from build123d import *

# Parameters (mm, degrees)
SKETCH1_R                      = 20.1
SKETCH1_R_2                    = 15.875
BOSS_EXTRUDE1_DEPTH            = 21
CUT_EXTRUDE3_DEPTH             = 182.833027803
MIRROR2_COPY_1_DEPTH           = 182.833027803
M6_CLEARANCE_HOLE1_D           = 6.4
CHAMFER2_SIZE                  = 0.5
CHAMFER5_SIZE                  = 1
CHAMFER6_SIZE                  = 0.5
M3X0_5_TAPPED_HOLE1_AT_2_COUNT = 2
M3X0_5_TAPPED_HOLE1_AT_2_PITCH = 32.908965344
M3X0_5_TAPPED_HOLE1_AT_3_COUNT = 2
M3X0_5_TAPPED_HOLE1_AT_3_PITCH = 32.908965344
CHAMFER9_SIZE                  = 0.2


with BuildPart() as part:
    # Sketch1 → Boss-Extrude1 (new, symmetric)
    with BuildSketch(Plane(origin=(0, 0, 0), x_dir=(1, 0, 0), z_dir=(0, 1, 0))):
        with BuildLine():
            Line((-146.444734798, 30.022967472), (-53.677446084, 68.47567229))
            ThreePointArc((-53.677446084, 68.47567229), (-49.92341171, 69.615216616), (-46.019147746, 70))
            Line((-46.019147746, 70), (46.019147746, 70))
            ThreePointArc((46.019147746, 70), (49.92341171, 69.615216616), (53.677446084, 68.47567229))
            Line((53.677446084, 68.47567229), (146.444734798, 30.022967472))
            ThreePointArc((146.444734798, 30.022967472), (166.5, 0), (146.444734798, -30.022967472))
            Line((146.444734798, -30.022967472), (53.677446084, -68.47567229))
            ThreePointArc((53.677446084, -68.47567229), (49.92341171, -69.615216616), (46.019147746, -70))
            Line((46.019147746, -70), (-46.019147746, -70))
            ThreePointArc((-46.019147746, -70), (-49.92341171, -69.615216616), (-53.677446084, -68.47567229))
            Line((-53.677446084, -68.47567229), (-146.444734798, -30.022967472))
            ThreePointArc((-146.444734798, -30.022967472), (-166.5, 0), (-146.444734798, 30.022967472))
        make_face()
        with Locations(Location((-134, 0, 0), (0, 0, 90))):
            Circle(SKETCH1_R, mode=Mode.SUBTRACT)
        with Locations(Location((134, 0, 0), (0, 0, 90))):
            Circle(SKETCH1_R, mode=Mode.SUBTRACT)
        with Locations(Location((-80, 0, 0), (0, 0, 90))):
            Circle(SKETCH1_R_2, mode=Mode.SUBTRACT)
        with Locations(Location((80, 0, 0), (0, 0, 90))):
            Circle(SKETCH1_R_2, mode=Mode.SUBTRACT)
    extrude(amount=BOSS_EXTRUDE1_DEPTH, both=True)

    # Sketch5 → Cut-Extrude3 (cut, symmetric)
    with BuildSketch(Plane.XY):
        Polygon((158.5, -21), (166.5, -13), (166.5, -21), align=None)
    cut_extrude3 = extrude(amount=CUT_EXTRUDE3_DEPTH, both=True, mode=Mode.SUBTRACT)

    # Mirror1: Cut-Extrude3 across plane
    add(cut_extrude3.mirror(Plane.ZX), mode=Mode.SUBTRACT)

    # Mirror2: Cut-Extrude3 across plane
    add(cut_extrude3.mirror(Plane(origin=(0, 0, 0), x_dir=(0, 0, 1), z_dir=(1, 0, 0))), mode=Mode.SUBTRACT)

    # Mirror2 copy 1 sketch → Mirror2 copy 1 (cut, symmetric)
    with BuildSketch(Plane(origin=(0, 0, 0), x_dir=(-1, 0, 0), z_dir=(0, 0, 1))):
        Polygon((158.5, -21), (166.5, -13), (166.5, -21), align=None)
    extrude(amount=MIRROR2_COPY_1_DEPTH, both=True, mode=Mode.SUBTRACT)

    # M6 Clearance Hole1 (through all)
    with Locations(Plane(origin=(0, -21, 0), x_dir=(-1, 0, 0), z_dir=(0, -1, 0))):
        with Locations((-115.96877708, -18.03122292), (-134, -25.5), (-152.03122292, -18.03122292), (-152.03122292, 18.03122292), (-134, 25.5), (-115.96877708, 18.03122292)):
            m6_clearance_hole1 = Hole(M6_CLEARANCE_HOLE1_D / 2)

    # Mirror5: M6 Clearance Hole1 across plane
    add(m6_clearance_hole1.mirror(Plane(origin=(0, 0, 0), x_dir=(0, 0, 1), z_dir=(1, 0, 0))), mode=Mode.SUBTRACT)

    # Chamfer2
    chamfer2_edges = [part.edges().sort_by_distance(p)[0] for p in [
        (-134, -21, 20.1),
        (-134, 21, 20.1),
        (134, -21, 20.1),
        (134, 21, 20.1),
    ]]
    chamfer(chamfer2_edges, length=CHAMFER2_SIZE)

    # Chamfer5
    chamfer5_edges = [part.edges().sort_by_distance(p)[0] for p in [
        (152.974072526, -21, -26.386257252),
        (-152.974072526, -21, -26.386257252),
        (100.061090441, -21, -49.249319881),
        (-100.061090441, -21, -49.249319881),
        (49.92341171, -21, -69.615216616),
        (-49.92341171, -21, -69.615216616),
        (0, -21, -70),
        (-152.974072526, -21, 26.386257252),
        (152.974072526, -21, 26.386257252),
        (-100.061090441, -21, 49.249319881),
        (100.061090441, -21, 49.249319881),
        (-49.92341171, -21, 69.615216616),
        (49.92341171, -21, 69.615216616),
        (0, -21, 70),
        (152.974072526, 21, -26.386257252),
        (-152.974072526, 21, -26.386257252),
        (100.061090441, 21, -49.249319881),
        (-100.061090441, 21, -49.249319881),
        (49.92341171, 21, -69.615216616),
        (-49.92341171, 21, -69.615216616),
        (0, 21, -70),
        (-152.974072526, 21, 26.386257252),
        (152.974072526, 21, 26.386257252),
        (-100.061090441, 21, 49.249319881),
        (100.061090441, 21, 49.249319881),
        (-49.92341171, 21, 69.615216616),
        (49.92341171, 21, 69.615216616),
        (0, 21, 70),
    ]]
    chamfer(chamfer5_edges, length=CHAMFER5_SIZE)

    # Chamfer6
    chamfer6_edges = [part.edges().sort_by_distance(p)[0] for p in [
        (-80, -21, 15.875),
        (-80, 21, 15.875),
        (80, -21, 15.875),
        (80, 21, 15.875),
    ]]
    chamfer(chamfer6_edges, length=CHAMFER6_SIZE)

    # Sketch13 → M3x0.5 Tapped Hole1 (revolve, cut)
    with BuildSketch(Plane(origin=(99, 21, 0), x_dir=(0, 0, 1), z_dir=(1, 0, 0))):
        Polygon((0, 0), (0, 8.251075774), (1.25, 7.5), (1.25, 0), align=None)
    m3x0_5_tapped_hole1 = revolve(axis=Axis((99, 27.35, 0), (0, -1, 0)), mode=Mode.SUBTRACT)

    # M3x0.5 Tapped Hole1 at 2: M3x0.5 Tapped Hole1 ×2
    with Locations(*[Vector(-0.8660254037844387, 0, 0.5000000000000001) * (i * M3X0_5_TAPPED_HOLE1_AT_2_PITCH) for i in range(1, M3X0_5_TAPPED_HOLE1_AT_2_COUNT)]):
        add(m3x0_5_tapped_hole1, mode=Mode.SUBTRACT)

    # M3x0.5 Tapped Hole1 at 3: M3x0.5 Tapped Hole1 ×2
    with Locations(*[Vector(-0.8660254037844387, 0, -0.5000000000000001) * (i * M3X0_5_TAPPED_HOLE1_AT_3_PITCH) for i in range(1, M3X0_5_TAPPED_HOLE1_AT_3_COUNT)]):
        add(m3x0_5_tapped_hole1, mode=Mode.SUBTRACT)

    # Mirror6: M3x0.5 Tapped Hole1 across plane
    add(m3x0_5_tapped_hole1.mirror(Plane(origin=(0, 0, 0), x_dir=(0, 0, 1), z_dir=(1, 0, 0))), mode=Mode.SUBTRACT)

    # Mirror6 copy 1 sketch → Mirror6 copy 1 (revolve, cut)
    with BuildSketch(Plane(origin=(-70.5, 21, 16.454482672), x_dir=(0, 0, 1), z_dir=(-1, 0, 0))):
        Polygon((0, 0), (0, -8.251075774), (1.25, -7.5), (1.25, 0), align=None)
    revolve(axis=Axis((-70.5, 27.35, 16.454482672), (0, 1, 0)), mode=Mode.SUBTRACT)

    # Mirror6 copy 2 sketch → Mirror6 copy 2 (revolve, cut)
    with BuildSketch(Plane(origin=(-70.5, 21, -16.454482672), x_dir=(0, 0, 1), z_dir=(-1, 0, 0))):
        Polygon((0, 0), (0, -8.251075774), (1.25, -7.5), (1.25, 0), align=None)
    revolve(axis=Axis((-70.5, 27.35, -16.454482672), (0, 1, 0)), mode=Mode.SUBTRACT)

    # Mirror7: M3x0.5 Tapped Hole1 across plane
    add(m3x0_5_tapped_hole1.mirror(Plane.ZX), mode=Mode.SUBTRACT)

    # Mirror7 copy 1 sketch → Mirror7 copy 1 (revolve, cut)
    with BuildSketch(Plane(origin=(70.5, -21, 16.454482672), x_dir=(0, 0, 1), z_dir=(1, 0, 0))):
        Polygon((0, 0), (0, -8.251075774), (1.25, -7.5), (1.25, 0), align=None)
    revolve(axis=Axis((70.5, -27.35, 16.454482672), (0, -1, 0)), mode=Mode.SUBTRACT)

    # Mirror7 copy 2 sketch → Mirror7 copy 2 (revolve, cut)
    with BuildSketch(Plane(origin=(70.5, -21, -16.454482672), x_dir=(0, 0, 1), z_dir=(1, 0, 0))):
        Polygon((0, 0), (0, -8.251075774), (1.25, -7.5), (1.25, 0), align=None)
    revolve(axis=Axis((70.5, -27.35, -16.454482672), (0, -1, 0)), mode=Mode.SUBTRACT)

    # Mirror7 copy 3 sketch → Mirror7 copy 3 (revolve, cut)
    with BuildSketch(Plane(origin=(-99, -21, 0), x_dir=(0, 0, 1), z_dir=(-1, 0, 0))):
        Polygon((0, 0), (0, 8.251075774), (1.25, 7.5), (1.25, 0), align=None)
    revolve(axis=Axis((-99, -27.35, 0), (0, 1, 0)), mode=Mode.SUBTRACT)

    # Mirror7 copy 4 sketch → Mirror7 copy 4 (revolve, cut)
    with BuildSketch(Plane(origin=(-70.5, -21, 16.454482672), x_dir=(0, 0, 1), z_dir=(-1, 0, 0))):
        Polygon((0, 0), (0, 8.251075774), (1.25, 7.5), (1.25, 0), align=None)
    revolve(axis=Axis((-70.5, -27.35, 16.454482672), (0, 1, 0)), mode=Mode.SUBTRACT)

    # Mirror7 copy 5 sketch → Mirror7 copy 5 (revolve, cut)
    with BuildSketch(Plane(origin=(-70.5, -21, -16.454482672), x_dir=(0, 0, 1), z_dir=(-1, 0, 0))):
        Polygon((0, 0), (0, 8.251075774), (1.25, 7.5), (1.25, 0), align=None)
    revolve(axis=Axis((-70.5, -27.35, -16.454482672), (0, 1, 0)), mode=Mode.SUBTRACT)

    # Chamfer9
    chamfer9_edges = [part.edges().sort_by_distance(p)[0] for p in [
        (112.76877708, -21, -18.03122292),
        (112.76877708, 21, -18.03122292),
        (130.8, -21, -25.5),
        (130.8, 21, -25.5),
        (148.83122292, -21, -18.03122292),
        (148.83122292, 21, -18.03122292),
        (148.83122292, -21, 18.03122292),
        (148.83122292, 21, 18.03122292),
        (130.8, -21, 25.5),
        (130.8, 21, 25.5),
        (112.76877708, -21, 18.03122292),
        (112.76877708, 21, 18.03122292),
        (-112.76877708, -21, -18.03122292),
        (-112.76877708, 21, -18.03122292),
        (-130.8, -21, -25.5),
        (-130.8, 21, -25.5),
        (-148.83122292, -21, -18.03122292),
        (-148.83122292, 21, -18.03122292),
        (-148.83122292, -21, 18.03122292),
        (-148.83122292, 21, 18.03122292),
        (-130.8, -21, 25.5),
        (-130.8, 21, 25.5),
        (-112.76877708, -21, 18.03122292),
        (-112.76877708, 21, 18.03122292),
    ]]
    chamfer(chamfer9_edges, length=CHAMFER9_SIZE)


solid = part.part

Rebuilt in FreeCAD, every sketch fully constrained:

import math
import FreeCAD as App
import Part
import Sketcher

V = App.Vector
Q = App.Units.Quantity


def edges_at(feature, points):
    """Names of the edges that pass closest to the given points."""
    edges = feature.Shape.Edges
    near = lambda p: min(range(len(edges)), key=lambda i: edges[i].distToShape(Part.Vertex(*p))[0])
    return sorted({f"Edge{near(p) + 1}" for p in points})


def add_polygon(sketch, points):
    """Adds a closed chain of lines whose ends are joined by coincident constraints."""
    first, n = sketch.GeometryCount, len(points)
    for a, b in zip(points, points[1:] + points[:1]):
        sketch.addGeometry(Part.LineSegment(App.Vector(*a, 0), App.Vector(*b, 0)), False)
    for i in range(n):
        sketch.addConstraint(Sketcher.Constraint("Coincident", first + i, 2, first + (i + 1) % n, 1))

doc = App.newDocument("Part")
body = doc.addObject("PartDesign::Body", "Body")

# Sketch on XZ plane
sketch1 = body.newObject("Sketcher::SketchObject", "Sketch")
sketch1.AttachmentSupport = (doc.getObject("XZ_Plane"), [""])
sketch1.MapMode = "FlatFace"
sketch1.addGeometry([
    Part.LineSegment(V(-54, -68, 0), V(-146, -30, 0)),  # 0
    Part.ArcOfCircle(Part.Circle(V(-134, 0, 0), V(0, 0, 1), 32), math.radians(113), math.radians(247)),  # 1
    Part.LineSegment(V(-146, 30, 0), V(-54, 68, 0)),  # 2
    Part.ArcOfCircle(Part.Circle(V(-46, 50, 0), V(0, 0, 1), 20), math.radians(90), math.radians(113)),  # 3
    Part.LineSegment(V(-46, 70, 0), V(46, 70, 0)),  # 4
    Part.ArcOfCircle(Part.Circle(V(46, 50, 0), V(0, 0, 1), 20), math.radians(67), math.radians(90)),  # 5
    Part.LineSegment(V(54, 68, 0), V(146, 30, 0)),  # 6
    Part.ArcOfCircle(Part.Circle(V(134, 0, 0), V(0, 0, 1), 32), math.radians(-67), math.radians(67)),  # 7
    Part.LineSegment(V(146, -30, 0), V(54, -68, 0)),  # 8
    Part.ArcOfCircle(Part.Circle(V(46, -50, 0), V(0, 0, 1), 20), math.radians(-90), math.radians(-67)),  # 9
    Part.LineSegment(V(46, -70, 0), V(-46, -70, 0)),  # 10
    Part.ArcOfCircle(Part.Circle(V(-46, -50, 0), V(0, 0, 1), 20), math.radians(-113), math.radians(-90)),  # 11
    Part.Circle(V(134, 0, 0), V(0, 0, 1), 20),  # 12
    Part.Circle(V(80, 0, 0), V(0, 0, 1), 16),  # 13
    Part.Circle(V(-80, 0, 0), V(0, 0, 1), 16),  # 14
    Part.Circle(V(-134, 0, 0), V(0, 0, 1), 20),  # 15
], False)
sketch1.addConstraint([
    Sketcher.Constraint("Tangent", 0, 2, 1, 2),
    Sketcher.Constraint("Tangent", 1, 1, 2, 1),
    Sketcher.Constraint("Tangent", 2, 2, 3, 2),
    Sketcher.Constraint("Tangent", 3, 1, 4, 1),
    Sketcher.Constraint("Tangent", 4, 2, 5, 2),
    Sketcher.Constraint("Tangent", 5, 1, 6, 1),
    Sketcher.Constraint("Tangent", 6, 2, 7, 2),
    Sketcher.Constraint("Tangent", 7, 1, 8, 1),
    Sketcher.Constraint("Tangent", 8, 2, 9, 2),
    Sketcher.Constraint("Tangent", 9, 1, 10, 1),
    Sketcher.Constraint("Tangent", 10, 2, 11, 2),
    Sketcher.Constraint("Tangent", 11, 1, 0, 1),
    Sketcher.Constraint("Horizontal", 4),
    Sketcher.Constraint("Horizontal", 10),
    Sketcher.Constraint("Coincident", 12, 3, 7, 3),
    Sketcher.Constraint("Coincident", 15, 3, 1, 3),
    Sketcher.Constraint("Equal", 3, 5),
    Sketcher.Constraint("Equal", 1, 7),
    Sketcher.Constraint("Equal", 5, 9),
    Sketcher.Constraint("Equal", 9, 11),
    Sketcher.Constraint("Equal", 13, 14),
    Sketcher.Constraint("Equal", 12, 15),
    Sketcher.Constraint("Symmetric", 1, 3, 7, 3, -1, 1),
    Sketcher.Constraint("Symmetric", 3, 3, 9, 3, -1, 1),
    Sketcher.Constraint("Symmetric", 13, 3, 14, 3, -1, 1),
    Sketcher.Constraint("Symmetric", 2, 2, 5, 1, -2),
    Sketcher.Constraint("PointOnObject", 13, 3, -1),
    Sketcher.Constraint("Parallel", 0, 6),
    Sketcher.Constraint("Radius", 3, Q("20 mm")),
    Sketcher.Constraint("Diameter", 12, Q("40.2 mm")),
    Sketcher.Constraint("Radius", 1, Q("32.5 mm")),
    Sketcher.Constraint("Diameter", 13, Q("31.75 mm")),
    Sketcher.Constraint("DistanceX", 1, 3, -1, 1, Q("134 mm")),
    Sketcher.Constraint("DistanceY", -1, 1, 3, 3, Q("50 mm")),
    Sketcher.Constraint("DistanceX", -1, 1, 13, 3, Q("80 mm")),
    Sketcher.Constraint("DistanceX", 2, 2, 3, 3, Q("7.658298 mm")),
])
pad1 = body.newObject("PartDesign::Pad", "Pad")
pad1.Profile = sketch1
pad1.Length = 42
pad1.Midplane = True

# Sketch on XY plane
sketch2 = body.newObject("Sketcher::SketchObject", "Sketch001")
sketch2.AttachmentSupport = (doc.getObject("XY_Plane"), [""])
sketch2.MapMode = "FlatFace"
add_polygon(sketch2, [(166, -13), (158, -21), (166, -21)])  # lines 0-2
sketch2.addConstraint([
    Sketcher.Constraint("Horizontal", 1),
    Sketcher.Constraint("Vertical", 2),
    Sketcher.Constraint("Equal", 1, 2),
    Sketcher.Constraint("DistanceX", 1, 1, 1, 2, Q("8 mm")),
    Sketcher.Constraint("DistanceY", 0, 2, -1, 1, Q("21 mm")),
    Sketcher.Constraint("DistanceX", -1, 1, 0, 2, Q("158.5 mm")),
])
pocket1 = body.newObject("PartDesign::Pocket", "Pocket")
pocket1.Profile = sketch2
pocket1.Length = 365.666056
pocket1.Midplane = True
doc.recompute()

mirrored = body.newObject("PartDesign::Mirrored", "Mirrored")
mirrored.Originals = [pocket1]
mirrored.MirrorPlane = (doc.getObject("XZ_Plane"), [""])
body.Tip = mirrored
doc.recompute()

mirrored2 = body.newObject("PartDesign::Mirrored", "Mirrored001")
mirrored2.Originals = [pocket1]
mirrored2.MirrorPlane = (doc.getObject("YZ_Plane"), [""])
body.Tip = mirrored2

# Sketch on XY plane
sketch3 = body.newObject("Sketcher::SketchObject", "Sketch002")
sketch3.AttachmentSupport = (doc.getObject("XY_Plane"), [""])
sketch3.MapMode = "FlatFace"
add_polygon(sketch3, [(-166, 13), (-158, 21), (-166, 21)])  # lines 0-2
sketch3.addConstraint([
    Sketcher.Constraint("Horizontal", 1),
    Sketcher.Constraint("Vertical", 2),
    Sketcher.Constraint("Equal", 1, 2),
    Sketcher.Constraint("DistanceX", 1, 2, 1, 1, Q("8 mm")),
    Sketcher.Constraint("DistanceY", -1, 1, 0, 2, Q("21 mm")),
    Sketcher.Constraint("DistanceX", 0, 2, -1, 1, Q("158.5 mm")),
])
pocket2 = body.newObject("PartDesign::Pocket", "Pocket001")
pocket2.Profile = sketch3
pocket2.Length = 365.666056
pocket2.Midplane = True

# Sketch on XZ plane
sketch4 = body.newObject("Sketcher::SketchObject", "Sketch003")
sketch4.AttachmentSupport = (doc.getObject("XZ_Plane"), [""])
sketch4.MapMode = "FlatFace"
sketch4.AttachmentOffset = App.Placement(V(0, 0, 21), App.Rotation())
sketch4.addGeometry([
    Part.Circle(V(116, 18, 0), V(0, 0, 1), 3.2),  # 0
    Part.Circle(V(134, 25.5, 0), V(0, 0, 1), 3.2),  # 1
    Part.Circle(V(152, 18, 0), V(0, 0, 1), 3.2),  # 2
    Part.Circle(V(152, -18, 0), V(0, 0, 1), 3.2),  # 3
    Part.Circle(V(134, -25.5, 0), V(0, 0, 1), 3.2),  # 4
    Part.Circle(V(116, -18, 0), V(0, 0, 1), 3.2),  # 5
], False)
sketch4.addConstraint([
    Sketcher.Constraint("Equal", 0, 1),
    Sketcher.Constraint("Equal", 1, 2),
    Sketcher.Constraint("Equal", 2, 3),
    Sketcher.Constraint("Equal", 3, 4),
    Sketcher.Constraint("Equal", 4, 5),
    Sketcher.Constraint("Symmetric", 2, 3, 3, 3, -1),
    Sketcher.Constraint("Symmetric", 1, 3, 4, 3, -1),
    Sketcher.Constraint("Symmetric", 0, 3, 5, 3, -1),
    Sketcher.Constraint("Horizontal", 0, 3, 2, 3),
    Sketcher.Constraint("Diameter", 0, Q("6.4 mm")),
    Sketcher.Constraint("DistanceX", -1, 1, 1, 3, Q("134 mm")),
    Sketcher.Constraint("DistanceY", 4, 3, 1, 3, Q("51 mm")),
    Sketcher.Constraint("DistanceX", -1, 1, 0, 3, Q("115.968777 mm")),
    Sketcher.Constraint("DistanceY", -1, 1, 0, 3, Q("18.031223 mm")),
    Sketcher.Constraint("DistanceX", -1, 1, 2, 3, Q("152.031223 mm")),
])
doc.recompute()
hole = body.newObject("PartDesign::Hole", "Hole")
hole.Profile = sketch4
hole.ThreadType = "None"
hole.Diameter = 6.4
hole.DepthType = "ThroughAll"
doc.recompute()

mirrored3 = body.newObject("PartDesign::Mirrored", "Mirrored002")
mirrored3.Originals = [hole]
mirrored3.MirrorPlane = (doc.getObject("YZ_Plane"), [""])
body.Tip = mirrored3
doc.recompute()

chamfer = body.newObject("PartDesign::Chamfer", "Chamfer")
chamfer.Base = (mirrored3, edges_at(mirrored3, [
    (-134, -21, 20.1),
    (-134, 21, 20.1),
    (134, -21, 20.1),
    (134, 21, 20.1),
]))
chamfer.Size = 0.5
doc.recompute()

chamfer2 = body.newObject("PartDesign::Chamfer", "Chamfer001")
chamfer2.Base = (chamfer, edges_at(chamfer, [
    (152.974, -21, -26.386),
    (-152.974, -21, -26.386),
    (100.061, -21, -49.249),
    (-100.061, -21, -49.249),
    (49.923, -21, -69.615),
    (-49.923, -21, -69.615),
    (0, -21, -70),
    (-152.974, -21, 26.386),
    (152.974, -21, 26.386),
    (-100.061, -21, 49.249),
    (100.061, -21, 49.249),
    (-49.923, -21, 69.615),
    (49.923, -21, 69.615),
    (0, -21, 70),
    (152.974, 21, -26.386),
    (-152.974, 21, -26.386),
    (100.061, 21, -49.249),
    (-100.061, 21, -49.249),
    (49.923, 21, -69.615),
    (-49.923, 21, -69.615),
    (0, 21, -70),
    (-152.974, 21, 26.386),
    (152.974, 21, 26.386),
    (-100.061, 21, 49.249),
    (100.061, 21, 49.249),
    (-49.923, 21, 69.615),
    (49.923, 21, 69.615),
    (0, 21, 70),
]))
chamfer2.Size = 1
doc.recompute()

chamfer3 = body.newObject("PartDesign::Chamfer", "Chamfer002")
chamfer3.Base = (chamfer2, edges_at(chamfer2, [
    (-80, -21, 15.875),
    (-80, 21, 15.875),
    (80, -21, 15.875),
    (80, 21, 15.875),
]))
chamfer3.Size = 0.5

# Sketch on YZ plane
sketch5 = body.newObject("Sketcher::SketchObject", "Sketch004")
sketch5.AttachmentSupport = (doc.getObject("YZ_Plane"), [""])
sketch5.MapMode = "FlatFace"
sketch5.AttachmentOffset = App.Placement(V(0, 0, 99), App.Rotation())
add_polygon(sketch5, [(12.7, 0), (21, 0), (21, 1.2), (13.5, 1.2)])  # lines 0-3
sketch5.addConstraint([
    Sketcher.Constraint("Horizontal", 0),
    Sketcher.Constraint("Vertical", 1),
    Sketcher.Constraint("Horizontal", 2),
    Sketcher.Constraint("PointOnObject", 0, 2, -1),
    Sketcher.Constraint("Angle", 3, Q("-121 deg")),
    Sketcher.Constraint("DistanceX", 2, 2, 2, 1, Q("7.5 mm")),
    Sketcher.Constraint("DistanceX", -1, 1, 0, 2, Q("21 mm")),
    Sketcher.Constraint("DistanceY", 1, 1, 1, 2, Q("1.25 mm")),
])
groove = body.newObject("PartDesign::Groove", "Groove")
groove.Profile = sketch5
groove.ReferenceAxis = (sketch5, ["H_Axis"])
groove.Angle = 360
doc.recompute()

datumline = body.newObject("PartDesign::Line", "DatumLine")
datumline.Placement = App.Placement(V(0, 0, 0), App.Rotation(V(0, 0, 1), V(-0.866025404, 0, 0.5)))
linearpattern = body.newObject("PartDesign::LinearPattern", "LinearPattern")
linearpattern.Originals = [groove]
linearpattern.Direction = (datumline, [""])
linearpattern.Mode = "offset"
linearpattern.Offset = 32.908965
linearpattern.Occurrences = 2
body.Tip = linearpattern
doc.recompute()

datumline2 = body.newObject("PartDesign::Line", "DatumLine001")
datumline2.Placement = App.Placement(V(0, 0, 0), App.Rotation(V(0, 0, 1), V(-0.866025404, 0, -0.5)))
linearpattern2 = body.newObject("PartDesign::LinearPattern", "LinearPattern001")
linearpattern2.Originals = [groove]
linearpattern2.Direction = (datumline2, [""])
linearpattern2.Mode = "offset"
linearpattern2.Offset = 32.908965
linearpattern2.Occurrences = 2
body.Tip = linearpattern2
doc.recompute()

mirrored4 = body.newObject("PartDesign::Mirrored", "Mirrored003")
mirrored4.Originals = [groove]
mirrored4.MirrorPlane = (doc.getObject("YZ_Plane"), [""])
body.Tip = mirrored4

# Sketch on YZ plane
sketch6 = body.newObject("Sketcher::SketchObject", "Sketch005")
sketch6.AttachmentSupport = (doc.getObject("YZ_Plane"), [""])
sketch6.MapMode = "FlatFace"
sketch6.AttachmentOffset = App.Placement(V(0, 0, -70.5), App.Rotation())
add_polygon(sketch6, [(21, 16.5), (12.7, 16.5), (13.5, 17.7), (21, 17.7)])  # lines 0-3
sketch6.addGeometry(Part.LineSegment(V(12.7, 16.5, 0), V(21, 16.5, 0)), True)  # axis
sketch6.addConstraint([
    Sketcher.Constraint("Horizontal", 0),
    Sketcher.Constraint("Horizontal", 2),
    Sketcher.Constraint("Vertical", 3),
    Sketcher.Constraint("Horizontal", 4),
    Sketcher.Constraint("Coincident", 4, 1, 0, 2),
    Sketcher.Constraint("Vertical", 2, 2, 4, 2),
    Sketcher.Constraint("Angle", 1, Q("59 deg")),
    Sketcher.Constraint("DistanceX", 2, 1, 2, 2, Q("7.5 mm")),
    Sketcher.Constraint("DistanceX", -1, 1, 2, 2, Q("21 mm")),
    Sketcher.Constraint("DistanceY", 3, 2, 3, 1, Q("1.25 mm")),
    Sketcher.Constraint("DistanceY", -1, 1, 0, 2, Q("16.454483 mm")),
])
groove2 = body.newObject("PartDesign::Groove", "Groove001")
groove2.Profile = sketch6
groove2.ReferenceAxis = (sketch6, ["Axis0"])
groove2.Angle = 360

# Sketch on YZ plane
sketch7 = body.newObject("Sketcher::SketchObject", "Sketch006")
sketch7.AttachmentSupport = (doc.getObject("YZ_Plane"), [""])
sketch7.MapMode = "FlatFace"
sketch7.AttachmentOffset = App.Placement(V(0, 0, -70.5), App.Rotation())
add_polygon(sketch7, [(21, -16.5), (12.7, -16.5), (13.5, -15.2), (21, -15.2)])  # lines 0-3
sketch7.addGeometry(Part.LineSegment(V(12.7, -16.5, 0), V(21, -16.5, 0)), True)  # axis
sketch7.addConstraint([
    Sketcher.Constraint("Horizontal", 0),
    Sketcher.Constraint("Horizontal", 2),
    Sketcher.Constraint("Vertical", 3),
    Sketcher.Constraint("Horizontal", 4),
    Sketcher.Constraint("Coincident", 4, 1, 0, 2),
    Sketcher.Constraint("Vertical", 2, 2, 4, 2),
    Sketcher.Constraint("Angle", 1, Q("59 deg")),
    Sketcher.Constraint("DistanceX", 2, 1, 2, 2, Q("7.5 mm")),
    Sketcher.Constraint("DistanceX", -1, 1, 2, 2, Q("21 mm")),
    Sketcher.Constraint("DistanceY", 3, 2, 3, 1, Q("1.25 mm")),
    Sketcher.Constraint("DistanceY", 0, 2, -1, 1, Q("16.454483 mm")),
])
groove3 = body.newObject("PartDesign::Groove", "Groove002")
groove3.Profile = sketch7
groove3.ReferenceAxis = (sketch7, ["Axis0"])
groove3.Angle = 360
doc.recompute()

mirrored5 = body.newObject("PartDesign::Mirrored", "Mirrored004")
mirrored5.Originals = [groove]
mirrored5.MirrorPlane = (doc.getObject("XZ_Plane"), [""])
body.Tip = mirrored5

# Sketch on YZ plane
sketch8 = body.newObject("Sketcher::SketchObject", "Sketch007")
sketch8.AttachmentSupport = (doc.getObject("YZ_Plane"), [""])
sketch8.MapMode = "FlatFace"
sketch8.AttachmentOffset = App.Placement(V(0, 0, 70.5), App.Rotation())
add_polygon(sketch8, [(-21, 16.5), (-12.7, 16.5), (-13.5, 17.7), (-21, 17.7)])  # lines 0-3
sketch8.addGeometry(Part.LineSegment(V(-12.7, 16.5, 0), V(-21, 16.5, 0)), True)  # axis
sketch8.addConstraint([
    Sketcher.Constraint("Horizontal", 0),
    Sketcher.Constraint("Horizontal", 2),
    Sketcher.Constraint("Vertical", 3),
    Sketcher.Constraint("Horizontal", 4),
    Sketcher.Constraint("Coincident", 4, 1, 0, 2),
    Sketcher.Constraint("Vertical", 2, 2, 4, 2),
    Sketcher.Constraint("Angle", 1, Q("121 deg")),
    Sketcher.Constraint("DistanceX", 2, 2, 2, 1, Q("7.5 mm")),
    Sketcher.Constraint("DistanceX", 2, 2, -1, 1, Q("21 mm")),
    Sketcher.Constraint("DistanceY", 3, 2, 3, 1, Q("1.25 mm")),
    Sketcher.Constraint("DistanceY", -1, 1, 0, 2, Q("16.454483 mm")),
])
groove4 = body.newObject("PartDesign::Groove", "Groove003")
groove4.Profile = sketch8
groove4.ReferenceAxis = (sketch8, ["Axis0"])
groove4.Angle = 360

# Sketch on YZ plane
sketch9 = body.newObject("Sketcher::SketchObject", "Sketch008")
sketch9.AttachmentSupport = (doc.getObject("YZ_Plane"), [""])
sketch9.MapMode = "FlatFace"
sketch9.AttachmentOffset = App.Placement(V(0, 0, 70.5), App.Rotation())
add_polygon(sketch9, [(-21, -16.5), (-12.7, -16.5), (-13.5, -15.2), (-21, -15.2)])  # lines 0-3
sketch9.addGeometry(Part.LineSegment(V(-12.7, -16.5, 0), V(-21, -16.5, 0)), True)  # axis
sketch9.addConstraint([
    Sketcher.Constraint("Horizontal", 0),
    Sketcher.Constraint("Horizontal", 2),
    Sketcher.Constraint("Vertical", 3),
    Sketcher.Constraint("Horizontal", 4),
    Sketcher.Constraint("Coincident", 4, 1, 0, 2),
    Sketcher.Constraint("Vertical", 2, 2, 4, 2),
    Sketcher.Constraint("Angle", 1, Q("121 deg")),
    Sketcher.Constraint("DistanceX", 2, 2, 2, 1, Q("7.5 mm")),
    Sketcher.Constraint("DistanceX", 2, 2, -1, 1, Q("21 mm")),
    Sketcher.Constraint("DistanceY", 3, 2, 3, 1, Q("1.25 mm")),
    Sketcher.Constraint("DistanceY", 0, 2, -1, 1, Q("16.454483 mm")),
])
groove5 = body.newObject("PartDesign::Groove", "Groove004")
groove5.Profile = sketch9
groove5.ReferenceAxis = (sketch9, ["Axis0"])
groove5.Angle = 360

# Sketch on YZ plane
sketch10 = body.newObject("Sketcher::SketchObject", "Sketch009")
sketch10.AttachmentSupport = (doc.getObject("YZ_Plane"), [""])
sketch10.MapMode = "FlatFace"
sketch10.AttachmentOffset = App.Placement(V(0, 0, -99), App.Rotation())
add_polygon(sketch10, [(-12.7, 0), (-21, 0), (-21, 1.2), (-13.5, 1.2)])  # lines 0-3
sketch10.addConstraint([
    Sketcher.Constraint("Horizontal", 0),
    Sketcher.Constraint("Vertical", 1),
    Sketcher.Constraint("Horizontal", 2),
    Sketcher.Constraint("PointOnObject", 0, 2, -1),
    Sketcher.Constraint("Angle", 3, Q("-59 deg")),
    Sketcher.Constraint("DistanceX", 2, 1, 2, 2, Q("7.5 mm")),
    Sketcher.Constraint("DistanceX", 0, 2, -1, 1, Q("21 mm")),
    Sketcher.Constraint("DistanceY", 1, 1, 1, 2, Q("1.25 mm")),
])
groove6 = body.newObject("PartDesign::Groove", "Groove005")
groove6.Profile = sketch10
groove6.ReferenceAxis = (sketch10, ["H_Axis"])
groove6.Angle = 360

# Sketch on YZ plane
sketch11 = body.newObject("Sketcher::SketchObject", "Sketch010")
sketch11.AttachmentSupport = (doc.getObject("YZ_Plane"), [""])
sketch11.MapMode = "FlatFace"
sketch11.AttachmentOffset = App.Placement(V(0, 0, -70.5), App.Rotation())
add_polygon(sketch11, [(-12.7, 16.5), (-21, 16.5), (-21, 17.7), (-13.5, 17.7)])  # lines 0-3
sketch11.addGeometry(Part.LineSegment(V(-21, 16.5, 0), V(-12.7, 16.5, 0)), True)  # axis
sketch11.addConstraint([
    Sketcher.Constraint("Horizontal", 0),
    Sketcher.Constraint("Vertical", 1),
    Sketcher.Constraint("Horizontal", 2),
    Sketcher.Constraint("Horizontal", 4),
    Sketcher.Constraint("Coincident", 4, 1, 0, 2),
    Sketcher.Constraint("Equal", 0, 4),
    Sketcher.Constraint("Angle", 3, Q("-59 deg")),
    Sketcher.Constraint("DistanceX", 2, 1, 2, 2, Q("7.5 mm")),
    Sketcher.Constraint("DistanceX", 0, 2, -1, 1, Q("21 mm")),
    Sketcher.Constraint("DistanceY", 1, 1, 1, 2, Q("1.25 mm")),
    Sketcher.Constraint("DistanceY", -1, 1, 0, 2, Q("16.454483 mm")),
])
groove7 = body.newObject("PartDesign::Groove", "Groove006")
groove7.Profile = sketch11
groove7.ReferenceAxis = (sketch11, ["Axis0"])
groove7.Angle = 360

# Sketch on YZ plane
sketch12 = body.newObject("Sketcher::SketchObject", "Sketch011")
sketch12.AttachmentSupport = (doc.getObject("YZ_Plane"), [""])
sketch12.MapMode = "FlatFace"
sketch12.AttachmentOffset = App.Placement(V(0, 0, -70.5), App.Rotation())
add_polygon(sketch12, [(-12.7, -16.5), (-21, -16.5), (-21, -15.2), (-13.5, -15.2)])  # lines 0-3
sketch12.addGeometry(Part.LineSegment(V(-21, -16.5, 0), V(-12.7, -16.5, 0)), True)  # axis
sketch12.addConstraint([
    Sketcher.Constraint("Horizontal", 0),
    Sketcher.Constraint("Vertical", 1),
    Sketcher.Constraint("Horizontal", 2),
    Sketcher.Constraint("Horizontal", 4),
    Sketcher.Constraint("Coincident", 4, 1, 0, 2),
    Sketcher.Constraint("Equal", 0, 4),
    Sketcher.Constraint("Angle", 3, Q("-59 deg")),
    Sketcher.Constraint("DistanceX", 2, 1, 2, 2, Q("7.5 mm")),
    Sketcher.Constraint("DistanceX", 0, 2, -1, 1, Q("21 mm")),
    Sketcher.Constraint("DistanceY", 1, 1, 1, 2, Q("1.25 mm")),
    Sketcher.Constraint("DistanceY", 0, 2, -1, 1, Q("16.454483 mm")),
])
groove8 = body.newObject("PartDesign::Groove", "Groove007")
groove8.Profile = sketch12
groove8.ReferenceAxis = (sketch12, ["Axis0"])
groove8.Angle = 360
doc.recompute()

chamfer4 = body.newObject("PartDesign::Chamfer", "Chamfer003")
chamfer4.Base = (groove8, edges_at(groove8, [
    (112.769, -21, -18.031),
    (112.769, 21, -18.031),
    (130.8, -21, -25.5),
    (130.8, 21, -25.5),
    (148.831, -21, -18.031),
    (148.831, 21, -18.031),
    (148.831, -21, 18.031),
    (148.831, 21, 18.031),
    (130.8, -21, 25.5),
    (130.8, 21, 25.5),
    (112.769, -21, 18.031),
    (112.769, 21, 18.031),
    (-112.769, -21, -18.031),
    (-112.769, 21, -18.031),
    (-130.8, -21, -25.5),
    (-130.8, 21, -25.5),
    (-148.831, -21, -18.031),
    (-148.831, 21, -18.031),
    (-148.831, -21, 18.031),
    (-148.831, 21, 18.031),
    (-130.8, -21, 25.5),
    (-130.8, 21, 25.5),
    (-112.769, -21, 18.031),
    (-112.769, 21, 18.031),
]))
chamfer4.Size = 0.2

doc.recompute()
